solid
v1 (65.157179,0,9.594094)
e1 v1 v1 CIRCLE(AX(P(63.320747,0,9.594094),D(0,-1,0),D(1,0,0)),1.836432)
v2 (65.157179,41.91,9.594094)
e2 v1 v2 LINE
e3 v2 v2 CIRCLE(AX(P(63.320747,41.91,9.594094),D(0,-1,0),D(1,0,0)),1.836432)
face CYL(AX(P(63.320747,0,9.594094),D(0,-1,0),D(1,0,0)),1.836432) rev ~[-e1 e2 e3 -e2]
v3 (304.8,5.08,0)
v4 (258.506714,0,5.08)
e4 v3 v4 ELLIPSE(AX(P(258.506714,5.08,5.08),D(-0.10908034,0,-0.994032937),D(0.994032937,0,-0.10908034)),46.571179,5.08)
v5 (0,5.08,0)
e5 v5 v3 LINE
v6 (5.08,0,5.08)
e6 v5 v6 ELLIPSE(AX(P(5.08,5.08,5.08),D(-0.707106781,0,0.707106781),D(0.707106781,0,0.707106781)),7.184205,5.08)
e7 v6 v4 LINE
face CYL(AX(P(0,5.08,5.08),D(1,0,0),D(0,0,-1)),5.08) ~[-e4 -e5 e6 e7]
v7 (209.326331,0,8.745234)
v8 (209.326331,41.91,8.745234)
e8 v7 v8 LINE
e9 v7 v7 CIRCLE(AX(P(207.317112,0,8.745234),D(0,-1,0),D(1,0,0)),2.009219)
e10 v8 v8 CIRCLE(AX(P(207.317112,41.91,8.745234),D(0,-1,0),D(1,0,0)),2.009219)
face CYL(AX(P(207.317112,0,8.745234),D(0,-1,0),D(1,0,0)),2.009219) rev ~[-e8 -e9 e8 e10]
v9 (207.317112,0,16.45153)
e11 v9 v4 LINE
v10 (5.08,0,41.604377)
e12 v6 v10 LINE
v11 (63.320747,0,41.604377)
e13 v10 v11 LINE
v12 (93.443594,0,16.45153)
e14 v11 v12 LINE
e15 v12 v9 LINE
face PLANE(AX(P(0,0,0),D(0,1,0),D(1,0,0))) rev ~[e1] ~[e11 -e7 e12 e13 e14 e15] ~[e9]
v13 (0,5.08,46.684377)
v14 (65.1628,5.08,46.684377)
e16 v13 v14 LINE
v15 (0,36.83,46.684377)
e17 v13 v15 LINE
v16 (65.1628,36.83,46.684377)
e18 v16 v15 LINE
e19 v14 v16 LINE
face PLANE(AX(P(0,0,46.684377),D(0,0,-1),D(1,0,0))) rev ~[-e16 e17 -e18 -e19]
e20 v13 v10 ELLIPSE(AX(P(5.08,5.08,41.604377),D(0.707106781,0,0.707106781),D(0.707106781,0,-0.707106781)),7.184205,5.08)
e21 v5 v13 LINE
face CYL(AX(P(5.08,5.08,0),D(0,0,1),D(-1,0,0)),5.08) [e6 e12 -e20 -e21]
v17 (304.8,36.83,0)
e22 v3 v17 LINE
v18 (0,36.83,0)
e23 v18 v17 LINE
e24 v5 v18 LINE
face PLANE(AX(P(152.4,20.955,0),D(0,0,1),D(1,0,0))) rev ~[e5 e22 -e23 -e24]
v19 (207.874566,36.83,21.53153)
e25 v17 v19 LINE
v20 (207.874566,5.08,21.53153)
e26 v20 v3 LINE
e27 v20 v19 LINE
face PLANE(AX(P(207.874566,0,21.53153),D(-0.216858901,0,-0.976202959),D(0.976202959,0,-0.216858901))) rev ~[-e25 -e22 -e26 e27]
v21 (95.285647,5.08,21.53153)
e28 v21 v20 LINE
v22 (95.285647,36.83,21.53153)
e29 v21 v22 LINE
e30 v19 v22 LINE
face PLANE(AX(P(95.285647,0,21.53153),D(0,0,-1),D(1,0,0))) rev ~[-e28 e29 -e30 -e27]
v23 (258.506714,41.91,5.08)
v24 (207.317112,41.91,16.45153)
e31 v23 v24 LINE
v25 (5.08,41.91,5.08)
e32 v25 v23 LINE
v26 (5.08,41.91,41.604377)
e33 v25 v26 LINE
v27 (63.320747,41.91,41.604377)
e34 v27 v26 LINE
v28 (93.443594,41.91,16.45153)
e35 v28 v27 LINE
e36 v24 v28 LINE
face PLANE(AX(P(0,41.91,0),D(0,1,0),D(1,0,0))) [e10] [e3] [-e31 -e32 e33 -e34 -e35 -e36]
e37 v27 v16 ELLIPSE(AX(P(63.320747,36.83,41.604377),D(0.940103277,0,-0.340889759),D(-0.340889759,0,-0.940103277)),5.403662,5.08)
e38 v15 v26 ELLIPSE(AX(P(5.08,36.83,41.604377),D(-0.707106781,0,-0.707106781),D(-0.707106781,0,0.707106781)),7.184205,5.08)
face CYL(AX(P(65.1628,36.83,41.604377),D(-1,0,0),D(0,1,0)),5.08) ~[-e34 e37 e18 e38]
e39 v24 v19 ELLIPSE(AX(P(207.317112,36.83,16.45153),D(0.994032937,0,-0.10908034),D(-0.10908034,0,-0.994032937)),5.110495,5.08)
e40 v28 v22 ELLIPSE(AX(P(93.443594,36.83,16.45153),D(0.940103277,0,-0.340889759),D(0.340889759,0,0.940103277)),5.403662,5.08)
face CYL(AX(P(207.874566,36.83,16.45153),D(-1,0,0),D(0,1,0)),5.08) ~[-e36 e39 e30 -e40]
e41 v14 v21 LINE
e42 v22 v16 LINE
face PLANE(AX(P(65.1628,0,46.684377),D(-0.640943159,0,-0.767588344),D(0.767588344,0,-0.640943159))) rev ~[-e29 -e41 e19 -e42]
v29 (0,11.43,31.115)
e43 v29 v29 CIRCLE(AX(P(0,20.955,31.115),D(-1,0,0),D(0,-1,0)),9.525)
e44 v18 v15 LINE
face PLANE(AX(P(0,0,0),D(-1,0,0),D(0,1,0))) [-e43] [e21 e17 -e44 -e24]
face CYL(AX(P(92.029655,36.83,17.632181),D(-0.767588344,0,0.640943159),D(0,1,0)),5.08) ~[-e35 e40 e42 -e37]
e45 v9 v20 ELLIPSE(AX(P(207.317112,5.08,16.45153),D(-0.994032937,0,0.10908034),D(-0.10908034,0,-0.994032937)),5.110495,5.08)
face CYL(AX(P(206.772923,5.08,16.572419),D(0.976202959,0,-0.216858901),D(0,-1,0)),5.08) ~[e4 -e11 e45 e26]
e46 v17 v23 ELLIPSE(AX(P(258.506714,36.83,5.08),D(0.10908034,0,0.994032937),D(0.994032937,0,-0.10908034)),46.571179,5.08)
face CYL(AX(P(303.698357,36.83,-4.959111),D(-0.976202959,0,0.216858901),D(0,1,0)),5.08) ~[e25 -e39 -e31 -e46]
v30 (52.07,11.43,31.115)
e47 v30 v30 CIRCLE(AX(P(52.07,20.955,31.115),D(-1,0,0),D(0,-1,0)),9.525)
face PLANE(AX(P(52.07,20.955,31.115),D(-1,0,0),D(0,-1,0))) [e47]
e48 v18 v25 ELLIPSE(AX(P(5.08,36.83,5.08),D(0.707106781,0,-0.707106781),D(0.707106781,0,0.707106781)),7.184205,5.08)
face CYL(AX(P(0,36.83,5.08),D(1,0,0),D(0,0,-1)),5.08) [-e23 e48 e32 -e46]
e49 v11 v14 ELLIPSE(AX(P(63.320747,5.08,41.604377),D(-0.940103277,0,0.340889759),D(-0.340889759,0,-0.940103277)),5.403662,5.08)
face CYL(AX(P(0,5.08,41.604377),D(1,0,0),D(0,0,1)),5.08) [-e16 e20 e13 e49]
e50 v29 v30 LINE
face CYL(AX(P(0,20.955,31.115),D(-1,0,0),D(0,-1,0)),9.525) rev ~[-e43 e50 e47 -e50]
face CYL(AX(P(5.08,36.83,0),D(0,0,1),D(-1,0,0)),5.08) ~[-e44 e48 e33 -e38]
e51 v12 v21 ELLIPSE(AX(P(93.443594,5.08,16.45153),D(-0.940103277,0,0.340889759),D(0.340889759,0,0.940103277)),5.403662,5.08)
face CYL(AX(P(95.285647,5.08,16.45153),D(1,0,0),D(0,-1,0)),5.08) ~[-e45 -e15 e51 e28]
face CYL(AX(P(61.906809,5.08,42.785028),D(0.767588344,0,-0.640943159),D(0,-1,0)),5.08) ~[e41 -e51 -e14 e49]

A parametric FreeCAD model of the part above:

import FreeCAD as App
import Part
import Sketcher
from FreeCAD import Vector
Q = App.Units.Quantity


def edges_at(feature, points):
    """Names of the edges that pass closest to the given points."""
    edges = feature.Shape.Edges
    near = lambda p: min(range(len(edges)), key=lambda i: edges[i].distToShape(Part.Vertex(*p))[0])
    return sorted({f"Edge{near(p) + 1}" for p in points})

doc = App.newDocument("Part")
body = doc.addObject("PartDesign::Body", "Body")

# Sketch on XY plane
sketch1 = body.newObject("Sketcher::SketchObject", "Sketch")
sketch1.AttachmentSupport = (doc.getObject("XY_Plane"), [""])
sketch1.MapMode = "FlatFace"
sketch1.addGeometry(Part.LineSegment(Vector(0, 41.91, 0), Vector(0, 0, 0)), False)
sketch1.addGeometry(Part.LineSegment(Vector(0, 0, 0), Vector(304.8, 0, 0)), False)
sketch1.addGeometry(Part.LineSegment(Vector(304.8, 0, 0), Vector(304.8, 41.91, 0)), False)
sketch1.addGeometry(Part.LineSegment(Vector(304.8, 41.91, 0), Vector(0, 41.91, 0)), False)
sketch1.addConstraint(Sketcher.Constraint("Coincident", 0, 2, 1, 1))
sketch1.addConstraint(Sketcher.Constraint("Coincident", 1, 2, 2, 1))
sketch1.addConstraint(Sketcher.Constraint("Coincident", 2, 2, 3, 1))
sketch1.addConstraint(Sketcher.Constraint("Coincident", 3, 2, 0, 1))
sketch1.addConstraint(Sketcher.Constraint("Vertical", 0))
sketch1.addConstraint(Sketcher.Constraint("Horizontal", 1))
sketch1.addConstraint(Sketcher.Constraint("Vertical", 2))
sketch1.addConstraint(Sketcher.Constraint("Horizontal", 3))
sketch1.addConstraint(Sketcher.Constraint("Coincident", 0, 2, -1, 1))
sketch1.addConstraint(Sketcher.Constraint("DistanceX", 1, 1, 1, 2, Q("12 in")))
sketch1.addConstraint(Sketcher.Constraint("DistanceY", 0, 2, 0, 1, Q("1.65 in")))
pad1 = body.newObject("PartDesign::Pad", "Pad")
pad1.Profile = sketch1
pad1.Length = Q("2.85 in")

# Sketch on XZ plane
sketch2 = body.newObject("Sketcher::SketchObject", "Sketch001")
sketch2.AttachmentSupport = (doc.getObject("XZ_Plane"), [""])
sketch2.MapMode = "FlatFace"
sketch2.addGeometry(Part.LineSegment(Vector(304.8, 72.39, 0), Vector(0, 72.39, 0)), False)
sketch2.addGeometry(Part.LineSegment(Vector(0, 72.39, 0), Vector(304.8, 19.05, 0)), False)
sketch2.addGeometry(Part.LineSegment(Vector(304.8, 19.05, 0), Vector(304.8, 72.39, 0)), False)
sketch2.addConstraint(Sketcher.Constraint("Coincident", 0, 2, 1, 1))
sketch2.addConstraint(Sketcher.Constraint("Coincident", 1, 2, 2, 1))
sketch2.addConstraint(Sketcher.Constraint("Coincident", 2, 2, 0, 1))
sketch2.addConstraint(Sketcher.Constraint("Horizontal", 0))
sketch2.addConstraint(Sketcher.Constraint("Vertical", 2))
sketch2.addConstraint(Sketcher.Constraint("PointOnObject", 0, 2, -2))
sketch2.addConstraint(Sketcher.Constraint("DistanceX", 0, 2, 0, 1, Q("12 in")))
sketch2.addConstraint(Sketcher.Constraint("DistanceY", 2, 1, 2, 2, Q("2.1 in")))
sketch2.addConstraint(Sketcher.Constraint("DistanceY", -1, 1, 0, 2, Q("2.85 in")))
pocket1 = body.newObject("PartDesign::Pocket", "Pocket")
pocket1.Profile = sketch2
pocket1.Length = Q("1.75 in")

# Sketch on YZ plane
sketch3 = body.newObject("Sketcher::SketchObject", "Sketch002")
sketch3.AttachmentSupport = (doc.getObject("YZ_Plane"), [""])
sketch3.MapMode = "FlatFace"
sketch3.addGeometry(Part.Circle(Vector(20.955, 31.115, 0), Vector(0, 0, 1), 9.525), False)
sketch3.addConstraint(Sketcher.Constraint("Diameter", 0, Q("0.75 in")))
sketch3.addConstraint(Sketcher.Constraint("DistanceX", -1, 1, 0, 3, Q("0.825 in")))
sketch3.addConstraint(Sketcher.Constraint("DistanceY", -1, 1, 0, 3, Q("1.225 in")))
pocket2 = body.newObject("PartDesign::Pocket", "Pocket001")
pocket2.Profile = sketch3
pocket2.Length = Q("2.05 in")
pocket2.Reversed = True

# Sketch on XZ plane
sketch4 = body.newObject("Sketcher::SketchObject", "Sketch003")
sketch4.AttachmentSupport = (doc.getObject("XZ_Plane"), [""])
sketch4.MapMode = "FlatFace"
sketch4.addGeometry(Part.LineSegment(Vector(0, 72.39, 0), Vector(0, 53.749233, 0)), False)
sketch4.addGeometry(Part.LineSegment(Vector(0, 53.749233, 0), Vector(68.935052, 53.749233, 0)), False)
sketch4.addGeometry(Part.LineSegment(Vector(68.935052, 53.749233, 0), Vector(95.285647, 29.794142, 0)), False)
sketch4.addGeometry(Part.LineSegment(Vector(95.285647, 29.794142, 0), Vector(207.874566, 29.794142, 0)), False)
sketch4.addGeometry(Part.LineSegment(Vector(207.874566, 29.794142, 0), Vector(304.8, 0, 0)), False)
sketch4.addGeometry(Part.LineSegment(Vector(304.8, 0, 0), Vector(304.8, 19.05, 0)), False)
sketch4.addGeometry(Part.LineSegment(Vector(304.8, 19.05, 0), Vector(0, 72.39, 0)), False)
sketch4.addConstraint(Sketcher.Constraint("Coincident", 0, 2, 1, 1))
sketch4.addConstraint(Sketcher.Constraint("Coincident", 1, 2, 2, 1))
sketch4.addConstraint(Sketcher.Constraint("Coincident", 2, 2, 3, 1))
sketch4.addConstraint(Sketcher.Constraint("Coincident", 3, 2, 4, 1))
sketch4.addConstraint(Sketcher.Constraint("Coincident", 4, 2, 5, 1))
sketch4.addConstraint(Sketcher.Constraint("Coincident", 5, 2, 6, 1))
sketch4.addConstraint(Sketcher.Constraint("Coincident", 6, 2, 0, 1))
sketch4.addConstraint(Sketcher.Constraint("Vertical", 0))
sketch4.addConstraint(Sketcher.Constraint("Horizontal", 1))
sketch4.addConstraint(Sketcher.Constraint("Horizontal", 3))
sketch4.addConstraint(Sketcher.Constraint("Vertical", 5))
sketch4.addConstraint(Sketcher.Constraint("PointOnObject", 0, 2, -2))
sketch4.addConstraint(Sketcher.Constraint("PointOnObject", 4, 2, -1))
sketch4.addConstraint(Sketcher.Constraint("DistanceX", -1, 1, 4, 2, Q("12 in")))
sketch4.addConstraint(Sketcher.Constraint("DistanceY", 5, 1, 5, 2, Q("0.75 in")))
sketch4.addConstraint(Sketcher.Constraint("DistanceY", 5, 2, 6, 2, Q("2.1 in")))
sketch4.addConstraint(Sketcher.Constraint("Distance", 2, 35.6118))
sketch4.addConstraint(Sketcher.Constraint("DistanceX", 1, 1, 1, 2, 68.935052))
sketch4.addConstraint(Sketcher.Constraint("DistanceX", 3, 1, 3, 2, 112.58892))
sketch4.addConstraint(Sketcher.Constraint("DistanceY", 0, 2, 0, 1, 18.640767))
sketch4.addConstraint(Sketcher.Constraint("DistanceY", -1, 1, 2, 2, 29.794142))
pocket3 = body.newObject("PartDesign::Pocket", "Pocket002")
pocket3.Profile = sketch4
pocket3.Length = Q("1.66 in")

# Sketch on XZ plane
sketch5 = body.newObject("Sketcher::SketchObject", "Sketch004")
sketch5.AttachmentSupport = (doc.getObject("XZ_Plane"), [""])
sketch5.MapMode = "FlatFace"
sketch5.addGeometry(Part.LineSegment(Vector(0, 53.749233, 0), Vector(0, 46.684377, 0)), False)
sketch5.addGeometry(Part.LineSegment(Vector(0, 46.684377, 0), Vector(65.1628, 46.684377, 0)), False)
sketch5.addGeometry(Part.LineSegment(Vector(65.1628, 46.684377, 0), Vector(95.285647, 21.53153, 0)), False)
sketch5.addGeometry(Part.LineSegment(Vector(95.285647, 21.53153, 0), Vector(207.874566, 21.53153, 0)), False)
sketch5.addGeometry(Part.LineSegment(Vector(207.874566, 21.53153, 0), Vector(304.8, 0, 0)), False)
sketch5.addGeometry(Part.LineSegment(Vector(304.8, 0, 0), Vector(207.874566, 29.794142, 0)), False)
sketch5.addGeometry(Part.LineSegment(Vector(207.874566, 29.794142, 0), Vector(95.285647, 29.794142, 0)), False)
sketch5.addGeometry(Part.LineSegment(Vector(95.285647, 29.794142, 0), Vector(68.935052, 53.749233, 0)), False)
sketch5.addGeometry(Part.LineSegment(Vector(68.935052, 53.749233, 0), Vector(0, 53.749233, 0)), False)
sketch5.addConstraint(Sketcher.Constraint("Coincident", 0, 2, 1, 1))
sketch5.addConstraint(Sketcher.Constraint("Coincident", 1, 2, 2, 1))
sketch5.addConstraint(Sketcher.Constraint("Coincident", 2, 2, 3, 1))
sketch5.addConstraint(Sketcher.Constraint("Coincident", 3, 2, 4, 1))
sketch5.addConstraint(Sketcher.Constraint("Coincident", 4, 2, 5, 1))
sketch5.addConstraint(Sketcher.Constraint("Coincident", 5, 2, 6, 1))
sketch5.addConstraint(Sketcher.Constraint("Coincident", 6, 2, 7, 1))
sketch5.addConstraint(Sketcher.Constraint("Coincident", 7, 2, 8, 1))
sketch5.addConstraint(Sketcher.Constraint("Coincident", 8, 2, 0, 1))
sketch5.addConstraint(Sketcher.Constraint("Vertical", 0))
sketch5.addConstraint(Sketcher.Constraint("Horizontal", 1))
sketch5.addConstraint(Sketcher.Constraint("Horizontal", 3))
sketch5.addConstraint(Sketcher.Constraint("Horizontal", 6))
sketch5.addConstraint(Sketcher.Constraint("Horizontal", 8))
sketch5.addConstraint(Sketcher.Constraint("PointOnObject", 0, 2, -2))
sketch5.addConstraint(Sketcher.Constraint("PointOnObject", 4, 2, -1))
sketch5.addConstraint(Sketcher.Constraint("Vertical", 3, 2, 5, 2))
sketch5.addConstraint(Sketcher.Constraint("Vertical", 2, 2, 6, 2))
sketch5.addConstraint(Sketcher.Constraint("DistanceX", -1, 1, 4, 2, Q("12 in")))
sketch5.addConstraint(Sketcher.Constraint("DistanceX", 1, 1, 1, 2, 65.1628))
sketch5.addConstraint(Sketcher.Constraint("Distance", 4, 99.288199))
sketch5.addConstraint(Sketcher.Constraint("Distance", 7, 35.6118))
sketch5.addConstraint(Sketcher.Constraint("DistanceX", 3, 1, 3, 2, 112.58892))
sketch5.addConstraint(Sketcher.Constraint("DistanceX", 8, 2, 8, 1, 68.935052))
sketch5.addConstraint(Sketcher.Constraint("Distance", 2, 39.243491))
sketch5.addConstraint(Sketcher.Constraint("DistanceY", 0, 2, 0, 1, 7.064857))
sketch5.addConstraint(Sketcher.Constraint("DistanceY", -1, 1, 2, 2, 21.53153))
pocket4 = body.newObject("PartDesign::Pocket", "Pocket003")
pocket4.Profile = sketch5
pocket4.Length = Q("1.7 in")
doc.recompute()

fillet = body.newObject("PartDesign::Fillet", "Fillet")
fillet.Base = (pocket4, edges_at(pocket4, [
    (152.4, 0, 0),
    (256.337, 0, 10.766),
    (151.58, 0, 21.532),
    (80.224, 0, 34.108),
    (32.581, 0, 46.684),
    (0, 0, 23.342),
]))
fillet.Radius = Q("0.2 in")
doc.recompute()

fillet2 = body.newObject("PartDesign::Fillet", "Fillet001")
fillet2.Base = (fillet, edges_at(fillet, [
    (152.4, 41.91, 0),
    (0, 41.91, 23.342),
    (32.581, 41.91, 46.684),
    (80.224, 41.91, 34.108),
    (151.58, 41.91, 21.532),
    (256.337, 41.91, 10.766),
]))
fillet2.Radius = Q("0.2 in")

# Sketch on XZ plane
sketch6 = body.newObject("Sketcher::SketchObject", "Sketch005")
sketch6.AttachmentSupport = (doc.getObject("XZ_Plane"), [""])
sketch6.MapMode = "FlatFace"
sketch6.addGeometry(Part.Circle(Vector(63.320747, 9.594094, 0), Vector(0, 0, 1), 1.836432), False)
sketch6.addConstraint(Sketcher.Constraint("Diameter", 0, 3.672863))
sketch6.addConstraint(Sketcher.Constraint("DistanceX", -1, 1, 0, 3, 63.320747))
sketch6.addConstraint(Sketcher.Constraint("DistanceY", -1, 1, 0, 3, 9.594094))
pocket5 = body.newObject("PartDesign::Pocket", "Pocket004")
pocket5.Profile = sketch6
pocket5.Length = Q("2 in")

# Sketch on XZ plane
sketch7 = body.newObject("Sketcher::SketchObject", "Sketch006")
sketch7.AttachmentSupport = (doc.getObject("XZ_Plane"), [""])
sketch7.MapMode = "FlatFace"
sketch7.addGeometry(Part.Circle(Vector(207.317112, 8.745234, 0), Vector(0, 0, 1), 2.009219), False)
sketch7.addConstraint(Sketcher.Constraint("Diameter", 0, 4.018439))
sketch7.addConstraint(Sketcher.Constraint("DistanceX", -1, 1, 0, 3, 207.317112))
sketch7.addConstraint(Sketcher.Constraint("DistanceY", -1, 1, 0, 3, 8.745234))
pocket6 = body.newObject("PartDesign::Pocket", "Pocket005")
pocket6.Profile = sketch7
pocket6.Length = Q("2 in")

doc.recompute()
